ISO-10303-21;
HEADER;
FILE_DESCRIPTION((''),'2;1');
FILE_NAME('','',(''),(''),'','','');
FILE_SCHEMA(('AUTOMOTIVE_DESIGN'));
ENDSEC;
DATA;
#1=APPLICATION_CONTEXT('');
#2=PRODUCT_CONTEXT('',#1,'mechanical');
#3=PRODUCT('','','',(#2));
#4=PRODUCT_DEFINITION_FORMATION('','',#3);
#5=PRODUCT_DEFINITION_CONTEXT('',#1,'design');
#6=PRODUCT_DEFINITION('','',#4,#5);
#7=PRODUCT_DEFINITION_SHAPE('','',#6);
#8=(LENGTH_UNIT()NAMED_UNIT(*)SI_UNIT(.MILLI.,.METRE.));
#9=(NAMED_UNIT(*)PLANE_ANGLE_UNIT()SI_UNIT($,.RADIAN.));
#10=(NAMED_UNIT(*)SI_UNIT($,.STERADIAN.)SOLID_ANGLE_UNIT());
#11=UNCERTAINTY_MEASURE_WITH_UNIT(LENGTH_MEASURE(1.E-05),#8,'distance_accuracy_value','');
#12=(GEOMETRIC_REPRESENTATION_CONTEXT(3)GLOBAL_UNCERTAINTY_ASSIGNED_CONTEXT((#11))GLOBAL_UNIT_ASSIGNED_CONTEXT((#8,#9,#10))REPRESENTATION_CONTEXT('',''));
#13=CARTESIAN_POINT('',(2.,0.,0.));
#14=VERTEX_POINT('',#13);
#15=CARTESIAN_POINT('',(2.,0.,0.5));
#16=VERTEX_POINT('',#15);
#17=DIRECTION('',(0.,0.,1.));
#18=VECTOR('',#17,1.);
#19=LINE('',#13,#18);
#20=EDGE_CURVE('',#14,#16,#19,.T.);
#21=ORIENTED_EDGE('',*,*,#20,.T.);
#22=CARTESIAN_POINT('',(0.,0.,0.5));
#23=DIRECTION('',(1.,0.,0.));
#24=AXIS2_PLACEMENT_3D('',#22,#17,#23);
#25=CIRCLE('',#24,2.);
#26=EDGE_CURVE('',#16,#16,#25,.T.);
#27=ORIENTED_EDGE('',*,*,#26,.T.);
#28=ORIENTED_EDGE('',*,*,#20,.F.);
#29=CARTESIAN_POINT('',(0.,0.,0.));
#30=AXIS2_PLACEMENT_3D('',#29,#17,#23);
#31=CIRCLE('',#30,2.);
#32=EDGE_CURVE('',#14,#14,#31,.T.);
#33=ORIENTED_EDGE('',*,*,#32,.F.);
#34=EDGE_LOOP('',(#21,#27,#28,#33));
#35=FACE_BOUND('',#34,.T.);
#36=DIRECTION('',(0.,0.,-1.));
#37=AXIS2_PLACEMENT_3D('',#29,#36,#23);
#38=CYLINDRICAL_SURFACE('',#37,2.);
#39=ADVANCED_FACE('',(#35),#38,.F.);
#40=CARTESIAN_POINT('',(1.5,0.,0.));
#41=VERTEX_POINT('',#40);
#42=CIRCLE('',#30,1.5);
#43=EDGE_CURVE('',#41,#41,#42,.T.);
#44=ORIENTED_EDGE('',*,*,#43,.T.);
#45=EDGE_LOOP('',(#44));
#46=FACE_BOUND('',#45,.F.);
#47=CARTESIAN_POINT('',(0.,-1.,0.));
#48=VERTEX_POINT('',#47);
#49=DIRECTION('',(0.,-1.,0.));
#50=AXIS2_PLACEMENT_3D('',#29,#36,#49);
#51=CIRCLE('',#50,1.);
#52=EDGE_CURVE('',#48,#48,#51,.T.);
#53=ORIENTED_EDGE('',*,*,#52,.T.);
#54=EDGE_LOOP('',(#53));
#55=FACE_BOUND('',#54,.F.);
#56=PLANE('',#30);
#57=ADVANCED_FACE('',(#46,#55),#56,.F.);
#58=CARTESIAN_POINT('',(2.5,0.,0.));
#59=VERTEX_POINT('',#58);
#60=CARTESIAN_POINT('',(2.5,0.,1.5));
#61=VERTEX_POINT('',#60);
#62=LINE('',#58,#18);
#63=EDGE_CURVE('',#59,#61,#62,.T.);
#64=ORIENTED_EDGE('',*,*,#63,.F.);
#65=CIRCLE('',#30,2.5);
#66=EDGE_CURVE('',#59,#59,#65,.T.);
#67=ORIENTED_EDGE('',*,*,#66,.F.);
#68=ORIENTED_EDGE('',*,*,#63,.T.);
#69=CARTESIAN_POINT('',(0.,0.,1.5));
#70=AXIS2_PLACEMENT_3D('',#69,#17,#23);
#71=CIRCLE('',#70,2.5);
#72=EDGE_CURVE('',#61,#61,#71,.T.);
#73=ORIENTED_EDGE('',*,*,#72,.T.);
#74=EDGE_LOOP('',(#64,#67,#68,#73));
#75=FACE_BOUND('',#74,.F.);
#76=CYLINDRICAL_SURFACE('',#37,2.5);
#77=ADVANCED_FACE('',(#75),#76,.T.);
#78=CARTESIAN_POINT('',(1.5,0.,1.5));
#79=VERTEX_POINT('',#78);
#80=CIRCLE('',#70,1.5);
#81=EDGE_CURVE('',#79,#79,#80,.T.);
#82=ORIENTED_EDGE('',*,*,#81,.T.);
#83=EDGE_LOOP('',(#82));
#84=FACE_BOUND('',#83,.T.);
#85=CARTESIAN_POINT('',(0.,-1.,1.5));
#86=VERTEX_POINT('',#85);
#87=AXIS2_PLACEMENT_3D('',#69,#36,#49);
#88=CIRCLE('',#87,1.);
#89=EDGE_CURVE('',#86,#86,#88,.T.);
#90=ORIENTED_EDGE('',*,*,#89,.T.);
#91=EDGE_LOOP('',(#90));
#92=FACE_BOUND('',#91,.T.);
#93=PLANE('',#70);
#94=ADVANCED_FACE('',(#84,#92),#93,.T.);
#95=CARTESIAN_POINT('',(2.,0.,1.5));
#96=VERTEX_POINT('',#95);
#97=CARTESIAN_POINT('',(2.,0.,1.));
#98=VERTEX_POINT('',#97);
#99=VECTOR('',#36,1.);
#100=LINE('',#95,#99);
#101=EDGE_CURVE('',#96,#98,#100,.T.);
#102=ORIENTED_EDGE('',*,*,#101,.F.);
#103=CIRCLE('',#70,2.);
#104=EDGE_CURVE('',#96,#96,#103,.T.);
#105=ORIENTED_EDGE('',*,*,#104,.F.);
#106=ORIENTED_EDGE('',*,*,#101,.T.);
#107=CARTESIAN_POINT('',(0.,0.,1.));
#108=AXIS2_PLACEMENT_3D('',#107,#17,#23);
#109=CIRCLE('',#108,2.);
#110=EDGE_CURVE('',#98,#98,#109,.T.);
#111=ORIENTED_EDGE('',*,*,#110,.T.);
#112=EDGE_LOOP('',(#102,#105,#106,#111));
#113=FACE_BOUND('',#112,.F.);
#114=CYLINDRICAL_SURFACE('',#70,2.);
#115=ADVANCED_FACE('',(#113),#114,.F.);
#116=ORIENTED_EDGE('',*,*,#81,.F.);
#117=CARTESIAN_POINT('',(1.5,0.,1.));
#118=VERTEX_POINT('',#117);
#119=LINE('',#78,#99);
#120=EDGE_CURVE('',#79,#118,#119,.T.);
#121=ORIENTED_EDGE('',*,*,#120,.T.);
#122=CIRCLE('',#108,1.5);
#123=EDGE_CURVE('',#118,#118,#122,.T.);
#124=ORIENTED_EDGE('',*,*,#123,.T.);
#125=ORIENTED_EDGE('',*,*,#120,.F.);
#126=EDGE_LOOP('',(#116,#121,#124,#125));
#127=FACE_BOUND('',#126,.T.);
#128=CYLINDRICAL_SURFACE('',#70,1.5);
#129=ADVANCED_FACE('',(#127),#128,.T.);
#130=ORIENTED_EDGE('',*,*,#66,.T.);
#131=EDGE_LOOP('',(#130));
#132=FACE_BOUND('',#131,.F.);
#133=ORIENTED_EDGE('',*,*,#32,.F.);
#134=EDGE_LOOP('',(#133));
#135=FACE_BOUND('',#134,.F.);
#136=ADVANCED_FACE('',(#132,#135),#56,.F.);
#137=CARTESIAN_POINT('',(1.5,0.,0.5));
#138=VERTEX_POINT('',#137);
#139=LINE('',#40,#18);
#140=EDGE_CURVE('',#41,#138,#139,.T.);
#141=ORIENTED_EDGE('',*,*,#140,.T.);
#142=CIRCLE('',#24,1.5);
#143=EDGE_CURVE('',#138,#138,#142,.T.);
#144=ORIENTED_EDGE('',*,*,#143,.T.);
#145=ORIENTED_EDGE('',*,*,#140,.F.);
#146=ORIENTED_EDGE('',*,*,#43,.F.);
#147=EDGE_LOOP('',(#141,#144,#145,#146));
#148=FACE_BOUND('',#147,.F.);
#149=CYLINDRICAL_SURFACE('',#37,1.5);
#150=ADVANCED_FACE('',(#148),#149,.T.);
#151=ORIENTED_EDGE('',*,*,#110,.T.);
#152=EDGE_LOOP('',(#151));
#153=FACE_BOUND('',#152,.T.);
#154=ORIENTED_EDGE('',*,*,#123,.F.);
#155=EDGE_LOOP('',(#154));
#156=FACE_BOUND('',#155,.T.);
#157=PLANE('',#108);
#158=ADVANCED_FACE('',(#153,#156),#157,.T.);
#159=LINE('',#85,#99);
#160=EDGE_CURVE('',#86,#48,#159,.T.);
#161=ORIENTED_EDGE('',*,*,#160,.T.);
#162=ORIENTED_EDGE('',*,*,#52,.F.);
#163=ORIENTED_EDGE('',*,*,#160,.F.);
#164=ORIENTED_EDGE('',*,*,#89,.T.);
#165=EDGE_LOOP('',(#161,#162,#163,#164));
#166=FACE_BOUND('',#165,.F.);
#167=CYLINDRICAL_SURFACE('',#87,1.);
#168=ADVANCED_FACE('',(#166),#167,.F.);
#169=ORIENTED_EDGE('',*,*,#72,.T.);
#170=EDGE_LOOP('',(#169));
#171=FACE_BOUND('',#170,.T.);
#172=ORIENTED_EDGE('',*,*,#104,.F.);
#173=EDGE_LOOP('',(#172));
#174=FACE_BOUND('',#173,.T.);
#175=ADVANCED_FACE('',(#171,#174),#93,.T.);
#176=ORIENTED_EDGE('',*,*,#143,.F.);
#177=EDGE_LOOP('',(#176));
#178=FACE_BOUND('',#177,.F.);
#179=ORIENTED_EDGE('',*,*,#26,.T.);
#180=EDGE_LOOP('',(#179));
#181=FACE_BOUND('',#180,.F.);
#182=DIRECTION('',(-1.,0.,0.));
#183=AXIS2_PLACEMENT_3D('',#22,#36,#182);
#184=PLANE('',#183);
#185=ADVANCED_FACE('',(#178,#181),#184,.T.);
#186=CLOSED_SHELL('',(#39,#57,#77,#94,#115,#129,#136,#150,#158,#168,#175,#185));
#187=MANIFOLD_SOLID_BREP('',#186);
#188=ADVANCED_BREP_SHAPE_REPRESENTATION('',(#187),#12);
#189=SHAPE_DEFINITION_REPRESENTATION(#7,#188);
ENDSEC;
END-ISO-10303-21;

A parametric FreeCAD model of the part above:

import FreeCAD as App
import Part
import Sketcher
from FreeCAD import Vector
Q = App.Units.Quantity

doc = App.newDocument("Part")
body = doc.addObject("PartDesign::Body", "Body")

# Sketch on XY plane
sketch1 = body.newObject("Sketcher::SketchObject", "Sketch")
sketch1.AttachmentSupport = (doc.getObject("XY_Plane"), [""])
sketch1.MapMode = "FlatFace"
sketch1.addGeometry(Part.Circle(Vector(0, 0, 0), Vector(0, 0, 1), 2.5), False)
sketch1.addConstraint([
    Sketcher.Constraint("Coincident", 0, 3, -1, 1),
    Sketcher.Constraint("Diameter", 0, Q("5 mm")),
])
pad1 = body.newObject("PartDesign::Pad", "Pad")
pad1.Profile = sketch1
pad1.Length = 1.5

# Sketch on XY plane
sketch2 = body.newObject("Sketcher::SketchObject", "Sketch001")
sketch2.AttachmentSupport = (doc.getObject("XY_Plane"), [""])
sketch2.MapMode = "FlatFace"
sketch2.AttachmentOffset = App.Placement(Vector(0, 0, 1.5), App.Rotation())
sketch2.addGeometry(Part.Circle(Vector(0, 0, 0), Vector(0, 0, 1), 1), False)
sketch2.addConstraint([
    Sketcher.Constraint("Coincident", 0, 3, -1, 1),
    Sketcher.Constraint("Diameter", 0, Q("2 mm")),
])
doc.recompute()
hole = body.newObject("PartDesign::Hole", "Hole")
hole.Profile = sketch2
hole.ThreadType = "None"
hole.Diameter = 2
hole.DepthType = "ThroughAll"

# Sketch on XY plane
sketch3 = body.newObject("Sketcher::SketchObject", "Sketch002")
sketch3.AttachmentSupport = (doc.getObject("XY_Plane"), [""])
sketch3.MapMode = "FlatFace"
sketch3.AttachmentOffset = App.Placement(Vector(0, 0, 1.5), App.Rotation())
sketch3.addGeometry([
    Part.Circle(Vector(0, 0, 0), Vector(0, 0, 1), 2),
    Part.Circle(Vector(0, 0, 0), Vector(0, 0, 1), 1.5),
], False)
sketch3.addConstraint([
    Sketcher.Constraint("Coincident", 0, 3, -1, 1),
    Sketcher.Constraint("Coincident", 1, 3, -1, 1),
    Sketcher.Constraint("Diameter", 0, Q("4 mm")),
    Sketcher.Constraint("Diameter", 1, Q("3 mm")),
])
pocket1 = body.newObject("PartDesign::Pocket", "Pocket")
pocket1.Profile = sketch3
pocket1.Length = 0.5
doc.recompute()

datumplane = body.newObject("PartDesign::Plane", "DatumPlane")
datumplane.AttachmentSupport = (doc.getObject("XY_Plane"), [""])
datumplane.MapMode = "FlatFace"
datumplane.AttachmentOffset = App.Placement(Vector(0, 0, 0.75), App.Rotation())
mirrored = body.newObject("PartDesign::Mirrored", "Mirrored")
mirrored.Originals = [pocket1]
mirrored.MirrorPlane = (datumplane, [""])
body.Tip = mirrored

doc.recompute()
